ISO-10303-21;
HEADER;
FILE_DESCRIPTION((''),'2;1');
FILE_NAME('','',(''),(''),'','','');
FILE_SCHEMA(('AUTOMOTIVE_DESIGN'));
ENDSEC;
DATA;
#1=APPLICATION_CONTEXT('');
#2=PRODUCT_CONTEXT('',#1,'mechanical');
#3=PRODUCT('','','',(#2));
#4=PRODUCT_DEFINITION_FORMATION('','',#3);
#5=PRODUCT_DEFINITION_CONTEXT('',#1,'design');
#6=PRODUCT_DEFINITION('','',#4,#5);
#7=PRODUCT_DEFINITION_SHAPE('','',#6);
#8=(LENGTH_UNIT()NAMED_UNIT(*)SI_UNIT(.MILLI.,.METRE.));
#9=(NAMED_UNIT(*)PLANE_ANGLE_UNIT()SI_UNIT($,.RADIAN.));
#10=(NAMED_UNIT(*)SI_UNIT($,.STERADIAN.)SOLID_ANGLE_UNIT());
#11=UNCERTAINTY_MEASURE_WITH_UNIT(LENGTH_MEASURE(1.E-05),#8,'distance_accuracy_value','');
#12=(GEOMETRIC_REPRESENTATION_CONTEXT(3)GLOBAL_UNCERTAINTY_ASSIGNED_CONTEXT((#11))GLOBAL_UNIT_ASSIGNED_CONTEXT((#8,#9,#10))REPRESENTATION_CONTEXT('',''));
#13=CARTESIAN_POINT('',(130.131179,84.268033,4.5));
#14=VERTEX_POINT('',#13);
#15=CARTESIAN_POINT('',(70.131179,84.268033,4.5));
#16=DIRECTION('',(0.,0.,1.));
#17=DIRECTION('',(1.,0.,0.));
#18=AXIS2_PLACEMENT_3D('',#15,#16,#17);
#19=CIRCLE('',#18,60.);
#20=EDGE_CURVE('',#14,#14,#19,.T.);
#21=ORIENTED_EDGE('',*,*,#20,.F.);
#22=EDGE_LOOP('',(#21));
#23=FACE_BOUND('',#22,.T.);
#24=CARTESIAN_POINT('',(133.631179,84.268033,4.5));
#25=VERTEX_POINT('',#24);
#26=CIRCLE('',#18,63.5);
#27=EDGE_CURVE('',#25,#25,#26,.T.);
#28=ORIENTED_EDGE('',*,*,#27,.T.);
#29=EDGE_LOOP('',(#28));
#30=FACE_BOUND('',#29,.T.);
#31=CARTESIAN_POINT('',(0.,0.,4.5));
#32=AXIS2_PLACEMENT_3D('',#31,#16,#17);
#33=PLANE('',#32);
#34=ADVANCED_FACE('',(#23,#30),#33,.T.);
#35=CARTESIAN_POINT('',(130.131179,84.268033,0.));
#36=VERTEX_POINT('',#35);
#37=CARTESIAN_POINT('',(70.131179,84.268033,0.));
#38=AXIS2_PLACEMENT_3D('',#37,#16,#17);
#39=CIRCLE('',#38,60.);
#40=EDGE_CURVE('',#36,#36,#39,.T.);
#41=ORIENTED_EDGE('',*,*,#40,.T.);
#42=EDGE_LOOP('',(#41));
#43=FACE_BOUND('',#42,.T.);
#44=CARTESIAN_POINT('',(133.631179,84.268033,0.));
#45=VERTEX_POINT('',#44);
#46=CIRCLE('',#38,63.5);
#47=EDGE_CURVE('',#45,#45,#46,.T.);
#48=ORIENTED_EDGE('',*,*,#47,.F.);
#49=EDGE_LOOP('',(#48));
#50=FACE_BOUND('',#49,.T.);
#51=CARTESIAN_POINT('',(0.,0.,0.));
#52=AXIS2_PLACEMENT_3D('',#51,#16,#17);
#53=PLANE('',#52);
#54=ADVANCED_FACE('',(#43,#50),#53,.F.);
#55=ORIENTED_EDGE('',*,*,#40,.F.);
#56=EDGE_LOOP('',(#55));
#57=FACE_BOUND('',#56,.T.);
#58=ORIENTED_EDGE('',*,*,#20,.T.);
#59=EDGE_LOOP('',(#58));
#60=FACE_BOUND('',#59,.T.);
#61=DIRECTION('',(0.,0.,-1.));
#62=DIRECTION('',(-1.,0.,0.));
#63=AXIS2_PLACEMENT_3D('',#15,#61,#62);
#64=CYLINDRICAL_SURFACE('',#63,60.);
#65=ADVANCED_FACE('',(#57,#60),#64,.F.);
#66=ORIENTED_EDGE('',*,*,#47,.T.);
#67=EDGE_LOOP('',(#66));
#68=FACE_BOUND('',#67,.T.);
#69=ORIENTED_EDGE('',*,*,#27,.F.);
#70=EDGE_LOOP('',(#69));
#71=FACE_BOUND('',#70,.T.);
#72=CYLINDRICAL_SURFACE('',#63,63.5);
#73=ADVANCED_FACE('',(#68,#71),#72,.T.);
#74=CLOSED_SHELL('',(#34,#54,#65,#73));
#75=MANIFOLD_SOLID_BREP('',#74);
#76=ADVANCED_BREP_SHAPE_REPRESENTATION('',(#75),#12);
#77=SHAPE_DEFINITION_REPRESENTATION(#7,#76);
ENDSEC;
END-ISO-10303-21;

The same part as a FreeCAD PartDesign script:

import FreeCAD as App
import Part
import Sketcher

doc = App.newDocument("Part")
body = doc.addObject("PartDesign::Body", "Body")

# Sketch on XY plane
sketch1 = body.newObject("Sketcher::SketchObject", "Sketch")
sketch1.AttachmentSupport = (doc.getObject("XY_Plane"), [""])
sketch1.MapMode = "FlatFace"
sketch1.addGeometry([
    Part.Circle(App.Vector(70, 84, 0), App.Vector(0, 0, 1), 64),
    Part.Circle(App.Vector(70, 84, 0), App.Vector(0, 0, 1), 60),
], False)
sketch1.addConstraint([
    Sketcher.Constraint("Coincident", 1, 3, 0, 3),
    Sketcher.Constraint("Diameter", 0, 127.0),
    Sketcher.Constraint("Diameter", 1, 120.0),
    Sketcher.Constraint("DistanceX", -1, 1, 0, 3, 70.131179),
    Sketcher.Constraint("DistanceY", -1, 1, 0, 3, 84.268033),
])
pad1 = body.newObject("PartDesign::Pad", "Pad")
pad1.Profile = sketch1
pad1.Length = 4.5

doc.recompute()
